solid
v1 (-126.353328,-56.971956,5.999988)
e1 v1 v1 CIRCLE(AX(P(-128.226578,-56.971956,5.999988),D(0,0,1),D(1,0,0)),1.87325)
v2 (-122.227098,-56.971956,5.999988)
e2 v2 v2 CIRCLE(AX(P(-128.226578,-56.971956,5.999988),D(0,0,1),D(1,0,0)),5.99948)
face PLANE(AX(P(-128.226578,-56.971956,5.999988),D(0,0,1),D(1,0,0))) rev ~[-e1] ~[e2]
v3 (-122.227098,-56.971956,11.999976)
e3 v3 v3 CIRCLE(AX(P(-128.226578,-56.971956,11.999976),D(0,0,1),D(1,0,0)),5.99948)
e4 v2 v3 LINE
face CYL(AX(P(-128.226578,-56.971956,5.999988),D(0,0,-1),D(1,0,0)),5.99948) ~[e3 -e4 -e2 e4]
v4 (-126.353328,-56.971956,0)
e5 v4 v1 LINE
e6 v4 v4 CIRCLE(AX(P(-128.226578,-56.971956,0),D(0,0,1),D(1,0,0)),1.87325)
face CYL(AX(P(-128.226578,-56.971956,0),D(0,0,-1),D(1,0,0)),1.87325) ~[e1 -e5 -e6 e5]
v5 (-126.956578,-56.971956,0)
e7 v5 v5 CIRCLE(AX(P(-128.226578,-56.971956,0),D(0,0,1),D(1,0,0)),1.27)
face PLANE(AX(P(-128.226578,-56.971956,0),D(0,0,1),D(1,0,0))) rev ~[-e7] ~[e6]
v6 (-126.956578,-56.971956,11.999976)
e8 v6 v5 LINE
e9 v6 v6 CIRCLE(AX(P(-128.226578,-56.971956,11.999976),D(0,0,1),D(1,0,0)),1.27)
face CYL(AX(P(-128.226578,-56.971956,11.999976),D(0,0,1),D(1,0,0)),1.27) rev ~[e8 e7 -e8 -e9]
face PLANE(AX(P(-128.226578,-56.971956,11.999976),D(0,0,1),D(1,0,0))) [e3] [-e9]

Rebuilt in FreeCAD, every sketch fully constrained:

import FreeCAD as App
import Part
import Sketcher

V = App.Vector
Q = App.Units.Quantity

doc = App.newDocument("Part")
body = doc.addObject("PartDesign::Body", "Body")

sketch1 = body.newObject("Sketcher::SketchObject", "Sketch")
sketch1.AttachmentSupport = (doc.getObject("XY_Plane"), [""])
sketch1.MapMode = "FlatFace"
sketch1.addGeometry(Part.Circle(V(-128.2, -57, 0), V(0, 0, 1), 1.9), False)
sketch1.addConstraint([
    Sketcher.Constraint("Diameter", 0, Q("0.1475 in")),
    Sketcher.Constraint("DistanceX", 0, 3, -1, 1, Q("128.226578 mm")),
    Sketcher.Constraint("DistanceY", 0, 3, -1, 1, Q("56.971956 mm")),
])
pad1 = body.newObject("PartDesign::Pad", "Pad")
pad1.Profile = sketch1
pad1.Length = 5.999988

sketch2 = body.newObject("Sketcher::SketchObject", "Sketch001")
sketch2.AttachmentSupport = (doc.getObject("XY_Plane"), [""])
sketch2.MapMode = "FlatFace"
sketch2.AttachmentOffset = App.Placement(V(0, 0, 5.999988), App.Rotation())
sketch2.addGeometry(Part.Circle(V(-128, -57, 0), V(0, 0, 1), 6), False)
sketch2.addConstraint([
    Sketcher.Constraint("Diameter", 0, Q("0.4724 in")),
    Sketcher.Constraint("DistanceX", 0, 3, -1, 1, Q("128.226578 mm")),
    Sketcher.Constraint("DistanceY", 0, 3, -1, 1, Q("56.971956 mm")),
])
pad2 = body.newObject("PartDesign::Pad", "Pad001")
pad2.Profile = sketch2
pad2.Length = 5.999988

sketch3 = body.newObject("Sketcher::SketchObject", "Sketch002")
sketch3.AttachmentSupport = (doc.getObject("XY_Plane"), [""])
sketch3.MapMode = "FlatFace"
sketch3.AttachmentOffset = App.Placement(V(0, 0, 11.999976), App.Rotation())
sketch3.addGeometry(Part.Circle(V(-128.2, -57, 0), V(0, 0, 1), 1.3), False)
sketch3.addConstraint([
    Sketcher.Constraint("Diameter", 0, Q("0.1 in")),
    Sketcher.Constraint("DistanceX", 0, 3, -1, 1, Q("128.226578 mm")),
    Sketcher.Constraint("DistanceY", 0, 3, -1, 1, Q("56.971956 mm")),
])
pocket1 = body.newObject("PartDesign::Pocket", "Pocket")
pocket1.Profile = sketch3
pocket1.Type = "ThroughAll"

doc.recompute()
